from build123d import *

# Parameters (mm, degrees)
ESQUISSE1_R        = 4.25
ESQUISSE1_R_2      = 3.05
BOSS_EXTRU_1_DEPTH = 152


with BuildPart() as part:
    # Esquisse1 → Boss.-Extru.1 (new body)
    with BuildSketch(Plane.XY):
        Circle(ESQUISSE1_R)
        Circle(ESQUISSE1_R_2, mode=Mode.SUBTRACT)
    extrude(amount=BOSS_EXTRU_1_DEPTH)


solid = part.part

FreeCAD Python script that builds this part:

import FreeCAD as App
import Part
import Sketcher

V = App.Vector
Q = App.Units.Quantity

doc = App.newDocument("Part")
body = doc.addObject("PartDesign::Body", "Body")

sketch1 = body.newObject("Sketcher::SketchObject", "Sketch")
sketch1.AttachmentSupport = (doc.getObject("XY_Plane"), [""])
sketch1.MapMode = "FlatFace"
sketch1.addGeometry([
    Part.Circle(V(0, 0, 0), V(0, 0, 1), 4.2),
    Part.Circle(V(0, 0, 0), V(0, 0, 1), 3),
], False)
sketch1.addConstraint([
    Sketcher.Constraint("Coincident", 0, 3, -1, 1),
    Sketcher.Constraint("Coincident", 1, 3, -1, 1),
    Sketcher.Constraint("Diameter", 0, Q("8.5 mm")),
    Sketcher.Constraint("Diameter", 1, Q("6.1 mm")),
])
pad1 = body.newObject("PartDesign::Pad", "Pad")
pad1.Profile = sketch1
pad1.Length = 152

doc.recompute()
